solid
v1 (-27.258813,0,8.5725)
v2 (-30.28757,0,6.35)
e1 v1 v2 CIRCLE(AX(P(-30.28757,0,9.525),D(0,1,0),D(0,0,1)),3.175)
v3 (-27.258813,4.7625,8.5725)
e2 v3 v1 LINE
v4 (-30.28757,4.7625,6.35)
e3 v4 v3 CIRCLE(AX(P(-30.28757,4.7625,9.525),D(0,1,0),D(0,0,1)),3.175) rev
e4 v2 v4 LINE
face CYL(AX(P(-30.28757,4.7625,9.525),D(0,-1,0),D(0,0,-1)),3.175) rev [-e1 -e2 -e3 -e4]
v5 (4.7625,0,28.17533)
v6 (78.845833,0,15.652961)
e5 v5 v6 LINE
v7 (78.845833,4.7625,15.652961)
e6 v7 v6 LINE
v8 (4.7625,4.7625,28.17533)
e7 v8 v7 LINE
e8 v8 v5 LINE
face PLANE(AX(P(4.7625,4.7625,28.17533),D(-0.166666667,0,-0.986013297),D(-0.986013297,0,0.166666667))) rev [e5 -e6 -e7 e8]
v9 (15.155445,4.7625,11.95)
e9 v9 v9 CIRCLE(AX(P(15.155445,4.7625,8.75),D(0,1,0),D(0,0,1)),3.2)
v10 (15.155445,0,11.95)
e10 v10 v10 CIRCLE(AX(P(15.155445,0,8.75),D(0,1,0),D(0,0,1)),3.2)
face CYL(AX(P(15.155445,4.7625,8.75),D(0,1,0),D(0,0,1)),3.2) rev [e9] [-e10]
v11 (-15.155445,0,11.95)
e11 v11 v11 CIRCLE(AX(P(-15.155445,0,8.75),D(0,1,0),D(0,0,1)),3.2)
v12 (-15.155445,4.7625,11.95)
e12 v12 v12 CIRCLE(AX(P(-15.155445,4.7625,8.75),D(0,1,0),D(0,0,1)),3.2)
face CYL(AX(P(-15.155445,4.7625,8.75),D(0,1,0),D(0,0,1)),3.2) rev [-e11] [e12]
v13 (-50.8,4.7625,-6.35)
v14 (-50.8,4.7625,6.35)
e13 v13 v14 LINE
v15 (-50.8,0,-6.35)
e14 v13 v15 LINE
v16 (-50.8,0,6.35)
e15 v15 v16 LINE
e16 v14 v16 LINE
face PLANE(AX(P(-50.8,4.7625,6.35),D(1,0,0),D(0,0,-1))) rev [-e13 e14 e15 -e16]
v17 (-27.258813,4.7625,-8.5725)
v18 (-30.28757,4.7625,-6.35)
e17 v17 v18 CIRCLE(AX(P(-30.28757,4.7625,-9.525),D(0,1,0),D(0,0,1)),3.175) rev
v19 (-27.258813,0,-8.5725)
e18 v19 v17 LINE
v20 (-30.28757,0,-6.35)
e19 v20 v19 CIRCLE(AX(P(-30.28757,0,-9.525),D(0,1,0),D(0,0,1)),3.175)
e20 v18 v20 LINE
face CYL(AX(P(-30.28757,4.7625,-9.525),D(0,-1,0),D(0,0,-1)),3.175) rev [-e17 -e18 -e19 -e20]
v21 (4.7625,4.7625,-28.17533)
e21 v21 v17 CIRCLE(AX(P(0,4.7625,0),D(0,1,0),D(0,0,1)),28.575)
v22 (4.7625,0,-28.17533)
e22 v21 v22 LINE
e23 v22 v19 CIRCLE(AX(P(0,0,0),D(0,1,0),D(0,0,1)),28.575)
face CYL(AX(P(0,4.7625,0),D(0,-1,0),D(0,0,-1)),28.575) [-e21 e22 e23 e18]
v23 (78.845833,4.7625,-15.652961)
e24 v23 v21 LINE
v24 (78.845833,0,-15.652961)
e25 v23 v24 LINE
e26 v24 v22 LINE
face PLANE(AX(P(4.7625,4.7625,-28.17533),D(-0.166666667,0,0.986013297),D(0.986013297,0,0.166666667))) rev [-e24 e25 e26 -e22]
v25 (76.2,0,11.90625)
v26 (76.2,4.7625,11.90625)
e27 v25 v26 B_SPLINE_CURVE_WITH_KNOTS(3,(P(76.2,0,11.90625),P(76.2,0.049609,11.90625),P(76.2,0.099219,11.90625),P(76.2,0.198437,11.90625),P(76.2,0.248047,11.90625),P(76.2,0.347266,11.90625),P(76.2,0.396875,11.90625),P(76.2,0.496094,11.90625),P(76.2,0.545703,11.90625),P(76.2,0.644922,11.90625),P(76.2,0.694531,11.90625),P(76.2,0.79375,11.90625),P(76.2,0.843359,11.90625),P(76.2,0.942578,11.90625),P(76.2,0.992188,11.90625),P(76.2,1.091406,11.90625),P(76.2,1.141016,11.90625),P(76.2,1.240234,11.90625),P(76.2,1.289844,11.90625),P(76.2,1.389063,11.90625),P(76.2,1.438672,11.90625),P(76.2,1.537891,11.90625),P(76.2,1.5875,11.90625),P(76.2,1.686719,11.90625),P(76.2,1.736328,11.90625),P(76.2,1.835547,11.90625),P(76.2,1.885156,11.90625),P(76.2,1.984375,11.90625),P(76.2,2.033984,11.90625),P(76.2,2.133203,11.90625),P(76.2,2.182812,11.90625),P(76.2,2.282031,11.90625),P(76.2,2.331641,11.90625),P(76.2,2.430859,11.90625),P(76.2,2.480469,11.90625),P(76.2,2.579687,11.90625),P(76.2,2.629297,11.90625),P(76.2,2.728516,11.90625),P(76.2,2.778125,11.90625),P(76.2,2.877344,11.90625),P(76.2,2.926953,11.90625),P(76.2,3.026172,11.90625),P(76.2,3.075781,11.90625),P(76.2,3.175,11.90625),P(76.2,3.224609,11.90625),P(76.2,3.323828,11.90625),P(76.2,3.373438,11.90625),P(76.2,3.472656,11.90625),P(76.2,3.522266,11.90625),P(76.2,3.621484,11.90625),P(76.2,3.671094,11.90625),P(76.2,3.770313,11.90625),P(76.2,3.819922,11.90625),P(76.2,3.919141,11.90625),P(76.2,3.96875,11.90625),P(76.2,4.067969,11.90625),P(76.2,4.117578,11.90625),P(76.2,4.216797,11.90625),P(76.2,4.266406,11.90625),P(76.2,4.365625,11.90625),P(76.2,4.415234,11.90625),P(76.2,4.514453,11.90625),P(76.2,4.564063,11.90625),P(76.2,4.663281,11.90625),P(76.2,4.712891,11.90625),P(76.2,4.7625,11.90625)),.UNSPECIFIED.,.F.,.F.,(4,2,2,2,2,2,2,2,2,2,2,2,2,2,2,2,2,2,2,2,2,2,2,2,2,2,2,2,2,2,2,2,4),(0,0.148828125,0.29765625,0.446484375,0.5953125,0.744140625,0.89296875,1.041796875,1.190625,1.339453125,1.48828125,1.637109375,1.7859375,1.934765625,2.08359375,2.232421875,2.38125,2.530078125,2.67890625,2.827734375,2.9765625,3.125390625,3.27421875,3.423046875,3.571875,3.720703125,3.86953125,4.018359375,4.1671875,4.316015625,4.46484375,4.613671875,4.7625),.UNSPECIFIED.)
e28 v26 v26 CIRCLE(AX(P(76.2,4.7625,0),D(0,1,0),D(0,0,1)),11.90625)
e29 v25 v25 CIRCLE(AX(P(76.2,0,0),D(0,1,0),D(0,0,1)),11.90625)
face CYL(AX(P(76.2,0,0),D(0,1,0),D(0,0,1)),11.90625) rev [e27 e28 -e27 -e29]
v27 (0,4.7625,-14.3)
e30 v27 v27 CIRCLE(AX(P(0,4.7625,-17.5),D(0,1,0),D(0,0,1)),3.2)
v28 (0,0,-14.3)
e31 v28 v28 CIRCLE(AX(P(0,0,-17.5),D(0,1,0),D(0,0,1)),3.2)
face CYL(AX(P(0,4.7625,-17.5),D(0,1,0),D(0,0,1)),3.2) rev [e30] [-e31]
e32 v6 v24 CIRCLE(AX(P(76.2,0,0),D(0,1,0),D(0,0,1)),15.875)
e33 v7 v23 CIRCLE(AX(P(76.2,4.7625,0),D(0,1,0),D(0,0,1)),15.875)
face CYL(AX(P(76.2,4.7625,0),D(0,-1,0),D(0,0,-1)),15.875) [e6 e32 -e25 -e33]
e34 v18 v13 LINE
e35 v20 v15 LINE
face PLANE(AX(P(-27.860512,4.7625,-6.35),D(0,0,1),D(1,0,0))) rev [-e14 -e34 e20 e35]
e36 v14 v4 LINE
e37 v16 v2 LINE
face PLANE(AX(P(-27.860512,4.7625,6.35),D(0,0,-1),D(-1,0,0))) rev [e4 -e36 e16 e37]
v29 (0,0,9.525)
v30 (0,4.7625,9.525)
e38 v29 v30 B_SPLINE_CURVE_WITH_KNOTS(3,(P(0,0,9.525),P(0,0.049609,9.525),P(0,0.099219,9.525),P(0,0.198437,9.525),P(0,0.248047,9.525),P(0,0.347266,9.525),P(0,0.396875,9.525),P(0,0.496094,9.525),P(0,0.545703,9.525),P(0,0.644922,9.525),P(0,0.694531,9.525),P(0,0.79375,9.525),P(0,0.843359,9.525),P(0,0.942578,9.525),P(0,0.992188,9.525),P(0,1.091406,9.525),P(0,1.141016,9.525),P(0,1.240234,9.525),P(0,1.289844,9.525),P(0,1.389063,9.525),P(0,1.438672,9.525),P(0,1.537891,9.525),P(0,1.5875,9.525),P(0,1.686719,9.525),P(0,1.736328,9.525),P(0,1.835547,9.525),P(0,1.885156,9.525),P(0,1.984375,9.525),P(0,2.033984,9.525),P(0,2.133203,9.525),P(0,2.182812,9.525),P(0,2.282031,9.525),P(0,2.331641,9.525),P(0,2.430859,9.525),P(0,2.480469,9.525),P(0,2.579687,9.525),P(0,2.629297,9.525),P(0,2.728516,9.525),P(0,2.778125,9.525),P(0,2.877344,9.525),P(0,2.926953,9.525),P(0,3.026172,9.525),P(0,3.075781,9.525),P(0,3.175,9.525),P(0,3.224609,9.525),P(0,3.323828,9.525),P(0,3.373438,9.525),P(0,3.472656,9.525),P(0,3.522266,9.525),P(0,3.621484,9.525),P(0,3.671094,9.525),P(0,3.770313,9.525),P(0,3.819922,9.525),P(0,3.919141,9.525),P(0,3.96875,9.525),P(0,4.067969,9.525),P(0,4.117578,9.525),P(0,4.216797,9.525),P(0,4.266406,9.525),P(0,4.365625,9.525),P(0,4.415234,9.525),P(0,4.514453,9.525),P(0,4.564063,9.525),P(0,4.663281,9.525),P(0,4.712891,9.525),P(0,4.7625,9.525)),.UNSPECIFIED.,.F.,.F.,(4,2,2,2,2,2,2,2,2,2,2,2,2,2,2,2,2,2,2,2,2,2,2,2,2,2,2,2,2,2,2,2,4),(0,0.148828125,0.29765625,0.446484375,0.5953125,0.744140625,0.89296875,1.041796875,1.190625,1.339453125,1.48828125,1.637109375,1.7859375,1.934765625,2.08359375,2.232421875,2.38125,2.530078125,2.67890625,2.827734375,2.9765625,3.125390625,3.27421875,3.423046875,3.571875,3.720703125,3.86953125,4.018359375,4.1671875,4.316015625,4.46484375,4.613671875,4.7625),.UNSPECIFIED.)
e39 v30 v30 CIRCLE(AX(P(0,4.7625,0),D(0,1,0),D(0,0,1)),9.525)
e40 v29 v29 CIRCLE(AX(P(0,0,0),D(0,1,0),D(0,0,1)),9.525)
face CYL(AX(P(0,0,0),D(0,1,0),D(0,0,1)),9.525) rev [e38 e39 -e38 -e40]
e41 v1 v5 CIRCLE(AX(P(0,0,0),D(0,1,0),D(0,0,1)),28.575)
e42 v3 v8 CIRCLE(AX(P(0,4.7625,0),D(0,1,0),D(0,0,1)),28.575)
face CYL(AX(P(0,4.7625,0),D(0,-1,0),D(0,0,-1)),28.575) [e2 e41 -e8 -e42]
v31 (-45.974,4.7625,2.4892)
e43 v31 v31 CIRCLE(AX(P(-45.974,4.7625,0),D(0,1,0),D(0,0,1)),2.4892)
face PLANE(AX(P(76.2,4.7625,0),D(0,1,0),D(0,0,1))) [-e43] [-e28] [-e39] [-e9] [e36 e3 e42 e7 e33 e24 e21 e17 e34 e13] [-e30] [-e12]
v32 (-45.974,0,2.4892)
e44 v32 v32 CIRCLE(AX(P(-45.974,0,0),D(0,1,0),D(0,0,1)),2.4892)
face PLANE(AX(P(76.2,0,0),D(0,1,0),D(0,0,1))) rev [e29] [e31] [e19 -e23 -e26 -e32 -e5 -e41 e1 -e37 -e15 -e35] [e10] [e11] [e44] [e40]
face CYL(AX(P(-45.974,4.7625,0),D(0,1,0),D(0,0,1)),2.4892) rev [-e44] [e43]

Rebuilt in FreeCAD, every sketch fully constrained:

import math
import FreeCAD as App
import Part
import Sketcher
from FreeCAD import Vector
Q = App.Units.Quantity


def edges_at(feature, points):
    """Names of the edges that pass closest to the given points."""
    edges = feature.Shape.Edges
    near = lambda p: min(range(len(edges)), key=lambda i: edges[i].distToShape(Part.Vertex(*p))[0])
    return sorted({f"Edge{near(p) + 1}" for p in points})

doc = App.newDocument("Part")
body = doc.addObject("PartDesign::Body", "Body")

# Sketch on XZ plane
sketch1 = body.newObject("Sketcher::SketchObject", "Sketch")
sketch1.AttachmentSupport = (doc.getObject("XZ_Plane"), [""])
sketch1.MapMode = "FlatFace"
sketch1.addGeometry([
    Part.LineSegment(Vector(79, -16, 0), Vector(5, -28, 0)),  # 0
    Part.ArcOfCircle(Part.Circle(Vector(0, 0, 0), Vector(0, 0, 1), 29), math.radians(-167), math.radians(-80)),  # 1
    Part.LineSegment(Vector(-28, -6, 0), Vector(-51, -6, 0)),  # 2
    Part.LineSegment(Vector(-51, -6, 0), Vector(-51, 6, 0)),  # 3
    Part.LineSegment(Vector(-51, 6, 0), Vector(-28, 6, 0)),  # 4
    Part.ArcOfCircle(Part.Circle(Vector(0, 0, 0), Vector(0, 0, 1), 29), math.radians(80), math.radians(167)),  # 5
    Part.LineSegment(Vector(5, 28, 0), Vector(79, 16, 0)),  # 6
    Part.ArcOfCircle(Part.Circle(Vector(76, 0, 0), Vector(0, 0, 1), 16), math.radians(-80), math.radians(80)),  # 7
], False)
sketch1.addConstraint([
    Sketcher.Constraint("Tangent", 0, 2, 1, 2),
    Sketcher.Constraint("Coincident", 1, 1, 2, 1),
    Sketcher.Constraint("Coincident", 2, 2, 3, 1),
    Sketcher.Constraint("Coincident", 3, 2, 4, 1),
    Sketcher.Constraint("Coincident", 4, 2, 5, 2),
    Sketcher.Constraint("Tangent", 5, 1, 6, 1),
    Sketcher.Constraint("Tangent", 6, 2, 7, 2),
    Sketcher.Constraint("Tangent", 7, 1, 0, 1),
    Sketcher.Constraint("Horizontal", 2),
    Sketcher.Constraint("Vertical", 3),
    Sketcher.Constraint("Horizontal", 4),
    Sketcher.Constraint("Coincident", 1, 3, -1, 1),
    Sketcher.Constraint("Coincident", 5, 3, -1, 1),
    Sketcher.Constraint("Equal", 1, 5),
    Sketcher.Constraint("PointOnObject", 7, 3, -1),
    Sketcher.Constraint("Vertical", 1, 1, 4, 2),
    Sketcher.Constraint("DistanceY", 3, 1, 3, 2, Q("0.5 in")),
    Sketcher.Constraint("DistanceX", -1, 1, 7, 3, Q("3 in")),
    Sketcher.Constraint("DistanceX", 2, 2, -1, 1, Q("2 in")),
    Sketcher.Constraint("Radius", 1, Q("1.125 in")),
    Sketcher.Constraint("Radius", 7, Q("0.625 in")),
])
pad1 = body.newObject("PartDesign::Pad", "Pad")
pad1.Profile = sketch1
pad1.Length = Q("0.1875 in")
pad1.Reversed = True

# Sketch on XZ plane
sketch2 = body.newObject("Sketcher::SketchObject", "Sketch001")
sketch2.AttachmentSupport = (doc.getObject("XZ_Plane"), [""])
sketch2.MapMode = "FlatFace"
sketch2.AttachmentOffset = App.Placement(Vector(0, 0, -0.1875 * 25.4), App.Rotation())
sketch2.addGeometry(Part.Circle(Vector(76, 0, 0), Vector(0, 0, 1), 12), False)
sketch2.addConstraint([
    Sketcher.Constraint("PointOnObject", 0, 3, -1),
    Sketcher.Constraint("Diameter", 0, Q("0.9375 in")),
    Sketcher.Constraint("DistanceX", -1, 1, 0, 3, Q("3 in")),
])
pocket1 = body.newObject("PartDesign::Pocket", "Pocket")
pocket1.Profile = sketch2
pocket1.Type = "ThroughAll"
pocket1.Reversed = True

# Sketch on XZ plane
sketch3 = body.newObject("Sketcher::SketchObject", "Sketch002")
sketch3.AttachmentSupport = (doc.getObject("XZ_Plane"), [""])
sketch3.MapMode = "FlatFace"
sketch3.AttachmentOffset = App.Placement(Vector(0, 0, -0.1875 * 25.4), App.Rotation())
sketch3.addGeometry([
    Part.Circle(Vector(0, -17.5, 0), Vector(0, 0, 1), 3.2),
    Part.Circle(Vector(-15.2, 8.8, 0), Vector(0, 0, 1), 3.2),
    Part.Circle(Vector(15.2, 8.8, 0), Vector(0, 0, 1), 3.2),
], False)
sketch3.addConstraint([
    Sketcher.Constraint("Equal", 0, 1),
    Sketcher.Constraint("Equal", 1, 2),
    Sketcher.Constraint("Symmetric", 1, 3, 2, 3, -2),
    Sketcher.Constraint("PointOnObject", 0, 3, -2),
    Sketcher.Constraint("Diameter", 0, Q("6.4 mm")),
    Sketcher.Constraint("DistanceY", 0, 3, -1, 1, Q("17.5 mm")),
    Sketcher.Constraint("DistanceY", -1, 1, 1, 3, Q("8.75 mm")),
    Sketcher.Constraint("DistanceX", 1, 3, 2, 3, Q("30.310889 mm")),
])
doc.recompute()
hole = body.newObject("PartDesign::Hole", "Hole")
hole.Profile = sketch3
hole.ThreadType = "None"
hole.Diameter = 6.4
hole.DepthType = "ThroughAll"
hole.Reversed = True

# Sketch on XZ plane
sketch4 = body.newObject("Sketcher::SketchObject", "Sketch003")
sketch4.AttachmentSupport = (doc.getObject("XZ_Plane"), [""])
sketch4.MapMode = "FlatFace"
sketch4.AttachmentOffset = App.Placement(Vector(0, 0, -0.1875 * 25.4), App.Rotation())
sketch4.addGeometry(Part.Circle(Vector(0, 0, 0), Vector(0, 0, 1), 10), False)
sketch4.addConstraint([
    Sketcher.Constraint("Coincident", 0, 3, -1, 1),
    Sketcher.Constraint("Diameter", 0, Q("0.75 in")),
])
pocket2 = body.newObject("PartDesign::Pocket", "Pocket001")
pocket2.Profile = sketch4
pocket2.Type = "ThroughAll"
pocket2.Reversed = True
doc.recompute()

fillet = body.newObject("PartDesign::Fillet", "Fillet")
fillet.Base = (pocket2, edges_at(pocket2, [(-27.861, 2.381, 6.35), (-27.861, 2.381, -6.35)]))
fillet.Radius = Q("0.125 in")

# Sketch on XZ plane
sketch5 = body.newObject("Sketcher::SketchObject", "Sketch004")
sketch5.AttachmentSupport = (doc.getObject("XZ_Plane"), [""])
sketch5.MapMode = "FlatFace"
sketch5.AttachmentOffset = App.Placement(Vector(0, 0, -0.1875 * 25.4), App.Rotation())
sketch5.addGeometry(Part.Circle(Vector(-46, 0, 0), Vector(0, 0, 1), 2.5), False)
sketch5.addConstraint([
    Sketcher.Constraint("PointOnObject", 0, 3, -1),
    Sketcher.Constraint("Diameter", 0, Q("0.196 in")),
    Sketcher.Constraint("DistanceX", 0, 3, -1, 1, Q("1.81 in")),
])
doc.recompute()
hole2 = body.newObject("PartDesign::Hole", "Hole001")
hole2.Profile = sketch5
hole2.ThreadType = "None"
hole2.Diameter = Q("0.196 in")
hole2.DepthType = "Dimension"
hole2.Depth = Q("0.375 in")
hole2.DrillPoint = "Angled"
hole2.DrillPointAngle = 118
hole2.Reversed = True

doc.recompute()
